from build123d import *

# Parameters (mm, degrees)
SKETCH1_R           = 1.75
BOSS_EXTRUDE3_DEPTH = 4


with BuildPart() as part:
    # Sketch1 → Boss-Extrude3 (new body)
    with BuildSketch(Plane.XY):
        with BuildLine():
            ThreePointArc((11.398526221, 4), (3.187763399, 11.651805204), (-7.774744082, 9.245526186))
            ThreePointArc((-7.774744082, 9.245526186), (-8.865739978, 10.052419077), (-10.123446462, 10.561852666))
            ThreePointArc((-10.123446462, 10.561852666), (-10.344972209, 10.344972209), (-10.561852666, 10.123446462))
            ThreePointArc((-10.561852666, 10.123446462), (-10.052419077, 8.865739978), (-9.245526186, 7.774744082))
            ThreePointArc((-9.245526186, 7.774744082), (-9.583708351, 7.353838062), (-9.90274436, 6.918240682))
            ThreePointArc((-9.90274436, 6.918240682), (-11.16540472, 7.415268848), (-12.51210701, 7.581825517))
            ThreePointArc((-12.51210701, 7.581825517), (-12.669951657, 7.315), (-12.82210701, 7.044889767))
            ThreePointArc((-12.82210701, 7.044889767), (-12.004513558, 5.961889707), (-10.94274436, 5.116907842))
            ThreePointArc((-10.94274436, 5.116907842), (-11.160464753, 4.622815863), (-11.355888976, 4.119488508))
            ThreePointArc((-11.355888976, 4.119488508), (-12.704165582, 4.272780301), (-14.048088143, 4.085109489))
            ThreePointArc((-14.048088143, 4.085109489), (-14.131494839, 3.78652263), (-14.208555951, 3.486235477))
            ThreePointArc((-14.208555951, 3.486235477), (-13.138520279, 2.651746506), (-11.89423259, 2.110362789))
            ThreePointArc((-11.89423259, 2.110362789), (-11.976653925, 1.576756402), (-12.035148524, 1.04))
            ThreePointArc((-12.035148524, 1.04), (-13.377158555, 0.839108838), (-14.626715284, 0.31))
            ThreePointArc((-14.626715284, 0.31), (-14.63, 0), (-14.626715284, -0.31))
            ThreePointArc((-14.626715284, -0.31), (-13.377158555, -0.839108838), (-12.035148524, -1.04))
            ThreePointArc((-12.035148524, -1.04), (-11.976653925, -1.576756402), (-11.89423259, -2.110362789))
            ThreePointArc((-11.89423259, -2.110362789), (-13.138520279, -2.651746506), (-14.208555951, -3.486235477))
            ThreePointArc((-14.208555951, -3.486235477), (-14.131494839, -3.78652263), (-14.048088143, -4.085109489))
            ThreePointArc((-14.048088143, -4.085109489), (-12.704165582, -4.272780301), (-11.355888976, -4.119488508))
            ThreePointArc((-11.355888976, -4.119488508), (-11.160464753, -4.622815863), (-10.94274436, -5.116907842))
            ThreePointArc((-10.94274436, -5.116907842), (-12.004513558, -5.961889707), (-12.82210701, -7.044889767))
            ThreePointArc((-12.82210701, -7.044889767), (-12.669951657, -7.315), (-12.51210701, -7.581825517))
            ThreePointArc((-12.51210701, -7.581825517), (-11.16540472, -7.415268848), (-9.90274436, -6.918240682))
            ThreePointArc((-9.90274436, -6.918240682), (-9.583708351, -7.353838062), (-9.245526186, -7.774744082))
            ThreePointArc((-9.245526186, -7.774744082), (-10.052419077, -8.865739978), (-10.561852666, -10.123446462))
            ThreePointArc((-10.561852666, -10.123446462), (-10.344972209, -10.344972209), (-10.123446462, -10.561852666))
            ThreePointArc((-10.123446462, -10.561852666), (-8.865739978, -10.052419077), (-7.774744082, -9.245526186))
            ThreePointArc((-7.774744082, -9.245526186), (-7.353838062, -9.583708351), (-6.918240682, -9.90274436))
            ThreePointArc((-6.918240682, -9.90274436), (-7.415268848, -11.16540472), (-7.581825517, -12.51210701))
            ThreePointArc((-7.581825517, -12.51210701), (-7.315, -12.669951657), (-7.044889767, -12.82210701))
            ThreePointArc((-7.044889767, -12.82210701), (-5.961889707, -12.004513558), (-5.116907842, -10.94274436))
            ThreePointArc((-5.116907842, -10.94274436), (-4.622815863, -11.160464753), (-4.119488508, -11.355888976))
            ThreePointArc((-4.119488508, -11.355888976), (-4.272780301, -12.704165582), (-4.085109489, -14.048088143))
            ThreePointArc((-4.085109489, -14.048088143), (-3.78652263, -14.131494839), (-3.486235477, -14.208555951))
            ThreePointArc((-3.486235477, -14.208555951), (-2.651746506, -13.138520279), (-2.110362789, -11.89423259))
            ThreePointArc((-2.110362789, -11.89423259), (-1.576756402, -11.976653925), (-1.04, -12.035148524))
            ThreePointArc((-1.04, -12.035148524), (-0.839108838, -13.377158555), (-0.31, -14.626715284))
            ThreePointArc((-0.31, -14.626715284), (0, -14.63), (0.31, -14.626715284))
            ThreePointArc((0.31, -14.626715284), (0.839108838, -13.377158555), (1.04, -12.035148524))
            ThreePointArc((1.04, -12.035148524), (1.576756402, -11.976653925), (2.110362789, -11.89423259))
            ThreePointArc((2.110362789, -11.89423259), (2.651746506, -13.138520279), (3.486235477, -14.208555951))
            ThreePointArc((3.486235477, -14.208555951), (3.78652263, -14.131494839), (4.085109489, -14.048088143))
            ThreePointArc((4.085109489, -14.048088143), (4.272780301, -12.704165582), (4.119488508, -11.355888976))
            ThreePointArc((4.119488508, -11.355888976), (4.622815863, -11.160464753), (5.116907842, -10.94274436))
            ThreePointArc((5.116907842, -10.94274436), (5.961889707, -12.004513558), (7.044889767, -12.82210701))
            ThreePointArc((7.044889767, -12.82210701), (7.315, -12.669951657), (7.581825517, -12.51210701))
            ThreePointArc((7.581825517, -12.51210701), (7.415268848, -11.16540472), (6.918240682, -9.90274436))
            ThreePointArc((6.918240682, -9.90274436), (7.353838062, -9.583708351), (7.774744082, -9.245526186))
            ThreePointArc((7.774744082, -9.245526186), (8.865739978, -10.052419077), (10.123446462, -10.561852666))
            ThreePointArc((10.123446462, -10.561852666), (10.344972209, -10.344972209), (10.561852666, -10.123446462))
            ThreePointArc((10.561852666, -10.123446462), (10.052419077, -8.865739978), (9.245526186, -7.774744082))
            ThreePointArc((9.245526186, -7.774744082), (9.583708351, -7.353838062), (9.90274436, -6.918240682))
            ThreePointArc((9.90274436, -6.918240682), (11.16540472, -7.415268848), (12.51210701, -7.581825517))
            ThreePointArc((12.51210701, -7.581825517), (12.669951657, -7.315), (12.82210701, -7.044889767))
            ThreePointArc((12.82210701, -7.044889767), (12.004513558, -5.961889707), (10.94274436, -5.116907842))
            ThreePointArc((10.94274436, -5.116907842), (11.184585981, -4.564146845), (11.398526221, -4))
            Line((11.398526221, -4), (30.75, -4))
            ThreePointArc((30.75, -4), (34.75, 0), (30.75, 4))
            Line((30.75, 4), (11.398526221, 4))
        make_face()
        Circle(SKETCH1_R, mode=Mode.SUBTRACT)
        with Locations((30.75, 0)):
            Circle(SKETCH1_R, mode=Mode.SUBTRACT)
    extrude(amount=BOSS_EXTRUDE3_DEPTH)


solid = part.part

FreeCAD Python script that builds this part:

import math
import FreeCAD as App
import Part
import Sketcher

V = App.Vector
Q = App.Units.Quantity

doc = App.newDocument("Part")
body = doc.addObject("PartDesign::Body", "Body")

# Sketch on XY plane
sketch1 = doc.addObject("Sketcher::SketchObject", "Sketch")
body.addObject(sketch1)
sketch1.AttachmentSupport = (doc.XY_Plane, [""])
sketch1.MapMode = "FlatFace"
sketch1.addGeometry(Part.ArcOfCircle(Part.Circle(V(0, 0, 0), V(0, 0, 1), 12.1), math.radians(19), math.radians(130)), False)
sketch1.addGeometry(Part.ArcOfCircle(Part.Circle(V(-11.5, 5.3, 0), V(0, 0, 1), 5.4), math.radians(46), math.radians(75)), False)
sketch1.addGeometry(Part.ArcOfCircle(Part.Circle(V(0, 0, 0), V(0, 0, 1), 14.6), math.radians(133.79), math.radians(136.21)), False)
sketch1.addGeometry(Part.ArcOfCircle(Part.Circle(V(-5.3, 11.5, 0), V(0, 0, 1), 5.4), math.radians(-165), math.radians(-136)), False)
sketch1.addGeometry(Part.ArcOfCircle(Part.Circle(V(0, 0, 0), V(0, 0, 1), 12.1), math.radians(139.94), math.radians(145.06)), False)
sketch1.addGeometry(Part.ArcOfCircle(Part.Circle(V(-12.5, 2.2, 0), V(0, 0, 1), 5.4), math.radians(61), math.radians(90)), False)
sketch1.addGeometry(Part.ArcOfCircle(Part.Circle(V(0, 0, 0), V(0, 0, 1), 14.6), math.radians(148.79), math.radians(151.21)), False)
sketch1.addGeometry(Part.ArcOfCircle(Part.Circle(V(-8.1, 9.7, 0), V(0, 0, 1), 5.4), math.radians(-150), math.radians(-121)), False)
sketch1.addGeometry(Part.ArcOfCircle(Part.Circle(V(0, 0, 0), V(0, 0, 1), 12.1), math.radians(154.94), math.radians(160.06)), False)
sketch1.addGeometry(Part.ArcOfCircle(Part.Circle(V(-12.6, -1.1, 0), V(0, 0, 1), 5.4), math.radians(76), math.radians(105)), False)
sketch1.addGeometry(Part.ArcOfCircle(Part.Circle(V(0, 0, 0), V(0, 0, 1), 14.6), math.radians(163.79), math.radians(166.21)), False)
sketch1.addGeometry(Part.ArcOfCircle(Part.Circle(V(-10.4, 7.3, 0), V(0, 0, 1), 5.4), math.radians(-135), math.radians(-106)), False)
sketch1.addGeometry(Part.ArcOfCircle(Part.Circle(V(0, 0, 0), V(0, 0, 1), 12.1), math.radians(169.94), math.radians(175.06)), False)
sketch1.addGeometry(Part.ArcOfCircle(Part.Circle(V(-11.9, -4.4, 0), V(0, 0, 1), 5.4), math.radians(91), math.radians(120)), False)
sketch1.addGeometry(Part.ArcOfCircle(Part.Circle(V(0, 0, 0), V(0, 0, 1), 14.6), math.radians(178.79), math.radians(181.21)), False)
sketch1.addGeometry(Part.ArcOfCircle(Part.Circle(V(-11.9, 4.4, 0), V(0, 0, 1), 5.4), math.radians(-120), math.radians(-91)), False)
sketch1.addGeometry(Part.ArcOfCircle(Part.Circle(V(0, 0, 0), V(0, 0, 1), 12.1), math.radians(-175.06), math.radians(-169.94)), False)
sketch1.addGeometry(Part.ArcOfCircle(Part.Circle(V(-10.4, -7.3, 0), V(0, 0, 1), 5.4), math.radians(106), math.radians(135)), False)
sketch1.addGeometry(Part.ArcOfCircle(Part.Circle(V(0, 0, 0), V(0, 0, 1), 14.6), math.radians(-166.21), math.radians(-163.79)), False)
sketch1.addGeometry(Part.ArcOfCircle(Part.Circle(V(-12.6, 1.1, 0), V(0, 0, 1), 5.4), math.radians(-105), math.radians(-76)), False)
sketch1.addGeometry(Part.ArcOfCircle(Part.Circle(V(0, 0, 0), V(0, 0, 1), 12.1), math.radians(-160.06), math.radians(-154.94)), False)
sketch1.addGeometry(Part.ArcOfCircle(Part.Circle(V(-8.1, -9.7, 0), V(0, 0, 1), 5.4), math.radians(121), math.radians(150)), False)
sketch1.addGeometry(Part.ArcOfCircle(Part.Circle(V(0, 0, 0), V(0, 0, 1), 14.6), math.radians(-151.21), math.radians(-148.79)), False)
sketch1.addGeometry(Part.ArcOfCircle(Part.Circle(V(-12.5, -2.2, 0), V(0, 0, 1), 5.4), math.radians(-90), math.radians(-61)), False)
sketch1.addGeometry(Part.ArcOfCircle(Part.Circle(V(0, 0, 0), V(0, 0, 1), 12.1), math.radians(-145.06), math.radians(-139.94)), False)
sketch1.addGeometry(Part.ArcOfCircle(Part.Circle(V(-5.3, -11.5, 0), V(0, 0, 1), 5.4), math.radians(136), math.radians(165)), False)
sketch1.addGeometry(Part.ArcOfCircle(Part.Circle(V(0, 0, 0), V(0, 0, 1), 14.6), math.radians(-136.21), math.radians(-133.79)), False)
sketch1.addGeometry(Part.ArcOfCircle(Part.Circle(V(-11.5, -5.3, 0), V(0, 0, 1), 5.4), math.radians(-75), math.radians(-46)), False)
sketch1.addGeometry(Part.ArcOfCircle(Part.Circle(V(0, 0, 0), V(0, 0, 1), 12.1), math.radians(-130.06), math.radians(-124.94)), False)
sketch1.addGeometry(Part.ArcOfCircle(Part.Circle(V(-2.2, -12.5, 0), V(0, 0, 1), 5.4), math.radians(151), math.radians(180)), False)
sketch1.addGeometry(Part.ArcOfCircle(Part.Circle(V(0, 0, 0), V(0, 0, 1), 14.6), math.radians(-121.21), math.radians(-118.79)), False)
sketch1.addGeometry(Part.ArcOfCircle(Part.Circle(V(-9.7, -8.1, 0), V(0, 0, 1), 5.4), math.radians(-60), math.radians(-31)), False)
sketch1.addGeometry(Part.ArcOfCircle(Part.Circle(V(0, 0, 0), V(0, 0, 1), 12.1), math.radians(-115.06), math.radians(-109.94)), False)
sketch1.addGeometry(Part.ArcOfCircle(Part.Circle(V(1.1, -12.6, 0), V(0, 0, 1), 5.4), math.radians(166), math.radians(195)), False)
sketch1.addGeometry(Part.ArcOfCircle(Part.Circle(V(0, 0, 0), V(0, 0, 1), 14.6), math.radians(-106.21), math.radians(-103.79)), False)
sketch1.addGeometry(Part.ArcOfCircle(Part.Circle(V(-7.3, -10.4, 0), V(0, 0, 1), 5.4), math.radians(-45), math.radians(-16)), False)
sketch1.addGeometry(Part.ArcOfCircle(Part.Circle(V(0, 0, 0), V(0, 0, 1), 12.1), math.radians(-100.06), math.radians(-94.94)), False)
sketch1.addGeometry(Part.ArcOfCircle(Part.Circle(V(4.4, -11.9, 0), V(0, 0, 1), 5.4), math.radians(-179), math.radians(-150)), False)
sketch1.addGeometry(Part.ArcOfCircle(Part.Circle(V(0, 0, 0), V(0, 0, 1), 14.6), math.radians(-91.21), math.radians(-88.79)), False)
sketch1.addGeometry(Part.ArcOfCircle(Part.Circle(V(-4.4, -11.9, 0), V(0, 0, 1), 5.4), math.radians(-30), math.radians(-1)), False)
sketch1.addGeometry(Part.ArcOfCircle(Part.Circle(V(0, 0, 0), V(0, 0, 1), 12.1), math.radians(-85.06), math.radians(-79.94)), False)
sketch1.addGeometry(Part.ArcOfCircle(Part.Circle(V(7.3, -10.4, 0), V(0, 0, 1), 5.4), math.radians(-164), math.radians(-135)), False)
sketch1.addGeometry(Part.ArcOfCircle(Part.Circle(V(0, 0, 0), V(0, 0, 1), 14.6), math.radians(-76.21), math.radians(-73.79)), False)
sketch1.addGeometry(Part.ArcOfCircle(Part.Circle(V(-1.1, -12.6, 0), V(0, 0, 1), 5.4), math.radians(-15), math.radians(14)), False)
sketch1.addGeometry(Part.ArcOfCircle(Part.Circle(V(0, 0, 0), V(0, 0, 1), 12.1), math.radians(-70.06), math.radians(-64.94)), False)
sketch1.addGeometry(Part.ArcOfCircle(Part.Circle(V(9.7, -8.1, 0), V(0, 0, 1), 5.4), math.radians(-149), math.radians(-120)), False)
sketch1.addGeometry(Part.ArcOfCircle(Part.Circle(V(0, 0, 0), V(0, 0, 1), 14.6), math.radians(-61.21), math.radians(-58.79)), False)
sketch1.addGeometry(Part.ArcOfCircle(Part.Circle(V(2.2, -12.5, 0), V(0, 0, 1), 5.4), math.radians(0), math.radians(29)), False)
sketch1.addGeometry(Part.ArcOfCircle(Part.Circle(V(0, 0, 0), V(0, 0, 1), 12.1), math.radians(-55.06), math.radians(-49.94)), False)
sketch1.addGeometry(Part.ArcOfCircle(Part.Circle(V(11.5, -5.3, 0), V(0, 0, 1), 5.4), math.radians(-134), math.radians(-105)), False)
sketch1.addGeometry(Part.ArcOfCircle(Part.Circle(V(0, 0, 0), V(0, 0, 1), 14.6), math.radians(-46.21), math.radians(-43.79)), False)
sketch1.addGeometry(Part.ArcOfCircle(Part.Circle(V(5.3, -11.5, 0), V(0, 0, 1), 5.4), math.radians(15), math.radians(44)), False)
sketch1.addGeometry(Part.ArcOfCircle(Part.Circle(V(0, 0, 0), V(0, 0, 1), 12.1), math.radians(-40.06), math.radians(-34.94)), False)
sketch1.addGeometry(Part.ArcOfCircle(Part.Circle(V(12.5, -2.2, 0), V(0, 0, 1), 5.4), math.radians(-119), math.radians(-90)), False)
sketch1.addGeometry(Part.ArcOfCircle(Part.Circle(V(0, 0, 0), V(0, 0, 1), 14.6), math.radians(-31.21), math.radians(-28.79)), False)
sketch1.addGeometry(Part.ArcOfCircle(Part.Circle(V(8.1, -9.7, 0), V(0, 0, 1), 5.4), math.radians(30), math.radians(59)), False)
sketch1.addGeometry(Part.ArcOfCircle(Part.Circle(V(0, 0, 0), V(0, 0, 1), 12.1), math.radians(-25.06), math.radians(-19.34)), False)
sketch1.addGeometry(Part.LineSegment(V(11.4, -4, 0), V(30.8, -4, 0)), False)
sketch1.addGeometry(Part.ArcOfCircle(Part.Circle(V(30.8, 0, 0), V(0, 0, 1), 4), math.radians(-90), math.radians(90)), False)
sketch1.addGeometry(Part.LineSegment(V(30.8, 4, 0), V(11.4, 4, 0)), False)
sketch1.addGeometry(Part.Circle(V(0, 0, 0), V(0, 0, 1), 1.8), False)
sketch1.addGeometry(Part.Circle(V(30.8, 0, 0), V(0, 0, 1), 1.8), False)
sketch1.addConstraint(Sketcher.Constraint("Coincident", 0, 2, 1, 1))
sketch1.addConstraint(Sketcher.Constraint("Coincident", 1, 2, 2, 1))
sketch1.addConstraint(Sketcher.Constraint("Coincident", 2, 2, 3, 1))
sketch1.addConstraint(Sketcher.Constraint("Coincident", 3, 2, 4, 1))
sketch1.addConstraint(Sketcher.Constraint("Coincident", 4, 2, 5, 1))
sketch1.addConstraint(Sketcher.Constraint("Coincident", 5, 2, 6, 1))
sketch1.addConstraint(Sketcher.Constraint("Coincident", 6, 2, 7, 1))
sketch1.addConstraint(Sketcher.Constraint("Coincident", 7, 2, 8, 1))
sketch1.addConstraint(Sketcher.Constraint("Coincident", 8, 2, 9, 1))
sketch1.addConstraint(Sketcher.Constraint("Coincident", 9, 2, 10, 1))
sketch1.addConstraint(Sketcher.Constraint("Coincident", 10, 2, 11, 1))
sketch1.addConstraint(Sketcher.Constraint("Coincident", 11, 2, 12, 1))
sketch1.addConstraint(Sketcher.Constraint("Coincident", 12, 2, 13, 1))
sketch1.addConstraint(Sketcher.Constraint("Coincident", 13, 2, 14, 1))
sketch1.addConstraint(Sketcher.Constraint("Coincident", 14, 2, 15, 1))
sketch1.addConstraint(Sketcher.Constraint("Coincident", 15, 2, 16, 1))
sketch1.addConstraint(Sketcher.Constraint("Coincident", 16, 2, 17, 1))
sketch1.addConstraint(Sketcher.Constraint("Coincident", 17, 2, 18, 1))
sketch1.addConstraint(Sketcher.Constraint("Coincident", 18, 2, 19, 1))
sketch1.addConstraint(Sketcher.Constraint("Coincident", 19, 2, 20, 1))
sketch1.addConstraint(Sketcher.Constraint("Coincident", 20, 2, 21, 1))
sketch1.addConstraint(Sketcher.Constraint("Coincident", 21, 2, 22, 1))
sketch1.addConstraint(Sketcher.Constraint("Coincident", 22, 2, 23, 1))
sketch1.addConstraint(Sketcher.Constraint("Coincident", 23, 2, 24, 1))
sketch1.addConstraint(Sketcher.Constraint("Coincident", 24, 2, 25, 1))
sketch1.addConstraint(Sketcher.Constraint("Coincident", 25, 2, 26, 1))
sketch1.addConstraint(Sketcher.Constraint("Coincident", 26, 2, 27, 1))
sketch1.addConstraint(Sketcher.Constraint("Coincident", 27, 2, 28, 1))
sketch1.addConstraint(Sketcher.Constraint("Coincident", 28, 2, 29, 1))
sketch1.addConstraint(Sketcher.Constraint("Coincident", 29, 2, 30, 1))
sketch1.addConstraint(Sketcher.Constraint("Coincident", 30, 2, 31, 1))
sketch1.addConstraint(Sketcher.Constraint("Coincident", 31, 2, 32, 1))
sketch1.addConstraint(Sketcher.Constraint("Coincident", 32, 2, 33, 1))
sketch1.addConstraint(Sketcher.Constraint("Coincident", 33, 2, 34, 1))
sketch1.addConstraint(Sketcher.Constraint("Coincident", 34, 2, 35, 1))
sketch1.addConstraint(Sketcher.Constraint("Coincident", 35, 2, 36, 1))
sketch1.addConstraint(Sketcher.Constraint("Coincident", 36, 2, 37, 1))
sketch1.addConstraint(Sketcher.Constraint("Coincident", 37, 2, 38, 1))
sketch1.addConstraint(Sketcher.Constraint("Coincident", 38, 2, 39, 1))
sketch1.addConstraint(Sketcher.Constraint("Coincident", 39, 2, 40, 1))
sketch1.addConstraint(Sketcher.Constraint("Coincident", 40, 2, 41, 1))
sketch1.addConstraint(Sketcher.Constraint("Coincident", 41, 2, 42, 1))
sketch1.addConstraint(Sketcher.Constraint("Coincident", 42, 2, 43, 1))
sketch1.addConstraint(Sketcher.Constraint("Coincident", 43, 2, 44, 1))
sketch1.addConstraint(Sketcher.Constraint("Coincident", 44, 2, 45, 1))
sketch1.addConstraint(Sketcher.Constraint("Coincident", 45, 2, 46, 1))
sketch1.addConstraint(Sketcher.Constraint("Coincident", 46, 2, 47, 1))
sketch1.addConstraint(Sketcher.Constraint("Coincident", 47, 2, 48, 1))
sketch1.addConstraint(Sketcher.Constraint("Coincident", 48, 2, 49, 1))
sketch1.addConstraint(Sketcher.Constraint("Coincident", 49, 2, 50, 1))
sketch1.addConstraint(Sketcher.Constraint("Coincident", 50, 2, 51, 1))
sketch1.addConstraint(Sketcher.Constraint("Coincident", 51, 2, 52, 1))
sketch1.addConstraint(Sketcher.Constraint("Coincident", 52, 2, 53, 1))
sketch1.addConstraint(Sketcher.Constraint("Coincident", 53, 2, 54, 1))
sketch1.addConstraint(Sketcher.Constraint("Coincident", 54, 2, 55, 1))
sketch1.addConstraint(Sketcher.Constraint("Coincident", 55, 2, 56, 1))
sketch1.addConstraint(Sketcher.Constraint("Coincident", 56, 2, 57, 1))
sketch1.addConstraint(Sketcher.Constraint("Tangent", 57, 2, 58, 1))
sketch1.addConstraint(Sketcher.Constraint("Tangent", 58, 2, 59, 1))
sketch1.addConstraint(Sketcher.Constraint("Coincident", 59, 2, 0, 1))
sketch1.addConstraint(Sketcher.Constraint("Horizontal", 57))
sketch1.addConstraint(Sketcher.Constraint("Horizontal", 59))
sketch1.addConstraint(Sketcher.Constraint("Coincident", 0, 3, -1, 1))
sketch1.addConstraint(Sketcher.Constraint("Coincident", 2, 3, -1, 1))
sketch1.addConstraint(Sketcher.Constraint("Coincident", 4, 3, -1, 1))
sketch1.addConstraint(Sketcher.Constraint("Coincident", 6, 3, -1, 1))
sketch1.addConstraint(Sketcher.Constraint("Coincident", 8, 3, -1, 1))
sketch1.addConstraint(Sketcher.Constraint("Coincident", 10, 3, -1, 1))
sketch1.addConstraint(Sketcher.Constraint("Coincident", 12, 3, -1, 1))
sketch1.addConstraint(Sketcher.Constraint("Coincident", 14, 3, -1, 1))
sketch1.addConstraint(Sketcher.Constraint("Coincident", 16, 3, -1, 1))
sketch1.addConstraint(Sketcher.Constraint("Coincident", 18, 3, -1, 1))
sketch1.addConstraint(Sketcher.Constraint("Coincident", 20, 3, -1, 1))
sketch1.addConstraint(Sketcher.Constraint("Coincident", 22, 3, -1, 1))
sketch1.addConstraint(Sketcher.Constraint("Coincident", 24, 3, -1, 1))
sketch1.addConstraint(Sketcher.Constraint("Coincident", 26, 3, -1, 1))
sketch1.addConstraint(Sketcher.Constraint("Coincident", 28, 3, -1, 1))
sketch1.addConstraint(Sketcher.Constraint("Coincident", 30, 3, -1, 1))
sketch1.addConstraint(Sketcher.Constraint("Coincident", 32, 3, -1, 1))
sketch1.addConstraint(Sketcher.Constraint("Coincident", 34, 3, -1, 1))
sketch1.addConstraint(Sketcher.Constraint("Coincident", 36, 3, -1, 1))
sketch1.addConstraint(Sketcher.Constraint("Coincident", 38, 3, -1, 1))
sketch1.addConstraint(Sketcher.Constraint("Coincident", 40, 3, -1, 1))
sketch1.addConstraint(Sketcher.Constraint("Coincident", 42, 3, -1, 1))
sketch1.addConstraint(Sketcher.Constraint("Coincident", 44, 3, -1, 1))
sketch1.addConstraint(Sketcher.Constraint("Coincident", 46, 3, -1, 1))
sketch1.addConstraint(Sketcher.Constraint("Coincident", 48, 3, -1, 1))
sketch1.addConstraint(Sketcher.Constraint("Coincident", 50, 3, -1, 1))
sketch1.addConstraint(Sketcher.Constraint("Coincident", 52, 3, -1, 1))
sketch1.addConstraint(Sketcher.Constraint("Coincident", 54, 3, -1, 1))
sketch1.addConstraint(Sketcher.Constraint("Coincident", 56, 3, -1, 1))
sketch1.addConstraint(Sketcher.Constraint("Coincident", 60, 3, -1, 1))
sketch1.addConstraint(Sketcher.Constraint("Coincident", 61, 3, 58, 3))
sketch1.addConstraint(Sketcher.Constraint("Equal", 1, 3))
sketch1.addConstraint(Sketcher.Constraint("Equal", 0, 4))
sketch1.addConstraint(Sketcher.Constraint("Equal", 3, 5))
sketch1.addConstraint(Sketcher.Constraint("Equal", 5, 7))
sketch1.addConstraint(Sketcher.Constraint("Equal", 4, 8))
sketch1.addConstraint(Sketcher.Constraint("Equal", 7, 9))
sketch1.addConstraint(Sketcher.Constraint("Equal", 6, 10))
sketch1.addConstraint(Sketcher.Constraint("Equal", 9, 11))
sketch1.addConstraint(Sketcher.Constraint("Equal", 8, 12))
sketch1.addConstraint(Sketcher.Constraint("Equal", 11, 13))
sketch1.addConstraint(Sketcher.Constraint("Equal", 10, 14))
sketch1.addConstraint(Sketcher.Constraint("Equal", 13, 15))
sketch1.addConstraint(Sketcher.Constraint("Equal", 12, 16))
sketch1.addConstraint(Sketcher.Constraint("Equal", 15, 17))
sketch1.addConstraint(Sketcher.Constraint("Equal", 14, 18))
sketch1.addConstraint(Sketcher.Constraint("Equal", 17, 19))
sketch1.addConstraint(Sketcher.Constraint("Equal", 16, 20))
sketch1.addConstraint(Sketcher.Constraint("Equal", 19, 21))
sketch1.addConstraint(Sketcher.Constraint("Equal", 18, 22))
sketch1.addConstraint(Sketcher.Constraint("Equal", 21, 23))
sketch1.addConstraint(Sketcher.Constraint("Equal", 20, 24))
sketch1.addConstraint(Sketcher.Constraint("Equal", 23, 25))
sketch1.addConstraint(Sketcher.Constraint("Equal", 18, 26))
sketch1.addConstraint(Sketcher.Constraint("Equal", 25, 27))
sketch1.addConstraint(Sketcher.Constraint("Equal", 24, 28))
sketch1.addConstraint(Sketcher.Constraint("Equal", 27, 29))
sketch1.addConstraint(Sketcher.Constraint("Equal", 22, 30))
sketch1.addConstraint(Sketcher.Constraint("Equal", 29, 31))
sketch1.addConstraint(Sketcher.Constraint("Equal", 28, 32))
sketch1.addConstraint(Sketcher.Constraint("Equal", 31, 33))
sketch1.addConstraint(Sketcher.Constraint("Equal", 30, 34))
sketch1.addConstraint(Sketcher.Constraint("Equal", 33, 35))
sketch1.addConstraint(Sketcher.Constraint("Equal", 32, 36))
sketch1.addConstraint(Sketcher.Constraint("Equal", 35, 37))
sketch1.addConstraint(Sketcher.Constraint("Equal", 34, 38))
sketch1.addConstraint(Sketcher.Constraint("Equal", 37, 39))
sketch1.addConstraint(Sketcher.Constraint("Equal", 36, 40))
sketch1.addConstraint(Sketcher.Constraint("Equal", 39, 41))
sketch1.addConstraint(Sketcher.Constraint("Equal", 38, 42))
sketch1.addConstraint(Sketcher.Constraint("Equal", 41, 43))
sketch1.addConstraint(Sketcher.Constraint("Equal", 40, 44))
sketch1.addConstraint(Sketcher.Constraint("Equal", 43, 45))
sketch1.addConstraint(Sketcher.Constraint("Equal", 42, 46))
sketch1.addConstraint(Sketcher.Constraint("Equal", 45, 47))
sketch1.addConstraint(Sketcher.Constraint("Equal", 44, 48))
sketch1.addConstraint(Sketcher.Constraint("Equal", 47, 49))
sketch1.addConstraint(Sketcher.Constraint("Equal", 42, 50))
sketch1.addConstraint(Sketcher.Constraint("Equal", 49, 51))
sketch1.addConstraint(Sketcher.Constraint("Equal", 48, 52))
sketch1.addConstraint(Sketcher.Constraint("Equal", 51, 53))
sketch1.addConstraint(Sketcher.Constraint("Equal", 46, 54))
sketch1.addConstraint(Sketcher.Constraint("Equal", 53, 55))
sketch1.addConstraint(Sketcher.Constraint("Equal", 52, 56))
sketch1.addConstraint(Sketcher.Constraint("Equal", 60, 61))
sketch1.addConstraint(Sketcher.Constraint("Symmetric", 1, 3, 49, 3, -1, 1))
sketch1.addConstraint(Sketcher.Constraint("Symmetric", 3, 3, 51, 3, -1, 1))
sketch1.addConstraint(Sketcher.Constraint("Symmetric", 5, 3, 53, 3, -1, 1))
sketch1.addConstraint(Sketcher.Constraint("Symmetric", 7, 3, 55, 3, -1, 1))
sketch1.addConstraint(Sketcher.Constraint("Symmetric", 37, 3, 39, 3, -2))
sketch1.addConstraint(Sketcher.Constraint("Symmetric", 35, 3, 41, 3, -2))
sketch1.addConstraint(Sketcher.Constraint("Symmetric", 33, 3, 43, 3, -2))
sketch1.addConstraint(Sketcher.Constraint("Symmetric", 31, 3, 45, 3, -2))
sketch1.addConstraint(Sketcher.Constraint("Symmetric", 29, 3, 47, 3, -2))
sketch1.addConstraint(Sketcher.Constraint("Symmetric", 27, 3, 49, 3, -2))
sketch1.addConstraint(Sketcher.Constraint("Symmetric", 25, 3, 51, 3, -2))
sketch1.addConstraint(Sketcher.Constraint("Symmetric", 23, 3, 53, 3, -2))
sketch1.addConstraint(Sketcher.Constraint("Symmetric", 21, 3, 55, 3, -2))
sketch1.addConstraint(Sketcher.Constraint("Symmetric", 13, 3, 15, 3, -1))
sketch1.addConstraint(Sketcher.Constraint("Symmetric", 11, 3, 17, 3, -1))
sketch1.addConstraint(Sketcher.Constraint("Symmetric", 9, 3, 19, 3, -1))
sketch1.addConstraint(Sketcher.Constraint("PointOnObject", 58, 3, -1))
sketch1.addConstraint(Sketcher.Constraint("Vertical", 2, 2, 25, 2))
sketch1.addConstraint(Sketcher.Constraint("Radius", 58, Q("4 mm")))
sketch1.addConstraint(Sketcher.Constraint("Diameter", 60, Q("3.5 mm")))
sketch1.addConstraint(Sketcher.Constraint("Radius", 1, Q("5.4 mm")))
sketch1.addConstraint(Sketcher.Constraint("Radius", 0, Q("12.08 mm")))
sketch1.addConstraint(Sketcher.Constraint("Radius", 2, Q("14.63 mm")))
sketch1.addConstraint(Sketcher.Constraint("DistanceX", -1, 1, 58, 3, Q("30.75 mm")))
sketch1.addConstraint(Sketcher.Constraint("DistanceY", -1, 1, 12, 2, Q("1.04 mm")))
sketch1.addConstraint(Sketcher.Constraint("DistanceY", -1, 1, 13, 2, Q("0.31 mm")))
sketch1.addConstraint(Sketcher.Constraint("DistanceX", 36, 2, -1, 1, Q("1.04 mm")))
sketch1.addConstraint(Sketcher.Constraint("DistanceX", 37, 2, -1, 1, Q("0.31 mm")))
sketch1.addConstraint(Sketcher.Constraint("DistanceY", -1, 1, 7, 3, Q("9.731199 mm")))
sketch1.addConstraint(Sketcher.Constraint("DistanceX", 31, 3, -1, 1, Q("9.731199 mm")))
sketch1.addConstraint(Sketcher.Constraint("DistanceX", 5, 3, -1, 1, Q("12.496311 mm")))
sketch1.addConstraint(Sketcher.Constraint("DistanceY", -1, 1, 5, 3, Q("2.181849 mm")))
sketch1.addConstraint(Sketcher.Constraint("DistanceY", 9, 3, -1, 1, Q("1.126779 mm")))
sketch1.addConstraint(Sketcher.Constraint("DistanceX", 29, 3, -1, 1, Q("2.181849 mm")))
sketch1.addConstraint(Sketcher.Constraint("DistanceY", 29, 3, -1, 1, Q("12.496311 mm")))
sketch1.addConstraint(Sketcher.Constraint("DistanceX", -1, 1, 33, 3, Q("1.126779 mm")))
sketch1.addConstraint(Sketcher.Constraint("DistanceY", -1, 1, 6, 2, Q("7.04489 mm")))
sketch1.addConstraint(Sketcher.Constraint("DistanceX", 8, 2, -1, 1, Q("11.355889 mm")))
sketch1.addConstraint(Sketcher.Constraint("DistanceX", 30, 2, -1, 1, Q("7.04489 mm")))
sketch1.addConstraint(Sketcher.Constraint("DistanceX", 32, 2, -1, 1, Q("4.119489 mm")))
sketch1.addConstraint(Sketcher.Constraint("DistanceX", 1, 3, -1, 1, Q("11.505806 mm")))
sketch1.addConstraint(Sketcher.Constraint("DistanceY", -1, 1, 1, 3, Q("5.341787 mm")))
sketch1.addConstraint(Sketcher.Constraint("DistanceX", 3, 3, -1, 1, Q("5.341787 mm")))
sketch1.addConstraint(Sketcher.Constraint("DistanceY", -1, 1, 3, 3, Q("11.505806 mm")))
sketch1.addConstraint(Sketcher.Constraint("DistanceX", 11, 3, -1, 1, Q("10.379027 mm")))
sketch1.addConstraint(Sketcher.Constraint("DistanceY", -1, 1, 11, 3, Q("7.293427 mm")))
sketch1.addConstraint(Sketcher.Constraint("DistanceX", 35, 3, -1, 1, Q("7.293427 mm")))
sketch1.addConstraint(Sketcher.Constraint("DistanceY", 35, 3, -1, 1, Q("10.379027 mm")))
pad1 = doc.addObject("PartDesign::Pad", "Pad")
body.addObject(pad1)
pad1.Profile = sketch1
pad1.Length = 4

doc.recompute()
